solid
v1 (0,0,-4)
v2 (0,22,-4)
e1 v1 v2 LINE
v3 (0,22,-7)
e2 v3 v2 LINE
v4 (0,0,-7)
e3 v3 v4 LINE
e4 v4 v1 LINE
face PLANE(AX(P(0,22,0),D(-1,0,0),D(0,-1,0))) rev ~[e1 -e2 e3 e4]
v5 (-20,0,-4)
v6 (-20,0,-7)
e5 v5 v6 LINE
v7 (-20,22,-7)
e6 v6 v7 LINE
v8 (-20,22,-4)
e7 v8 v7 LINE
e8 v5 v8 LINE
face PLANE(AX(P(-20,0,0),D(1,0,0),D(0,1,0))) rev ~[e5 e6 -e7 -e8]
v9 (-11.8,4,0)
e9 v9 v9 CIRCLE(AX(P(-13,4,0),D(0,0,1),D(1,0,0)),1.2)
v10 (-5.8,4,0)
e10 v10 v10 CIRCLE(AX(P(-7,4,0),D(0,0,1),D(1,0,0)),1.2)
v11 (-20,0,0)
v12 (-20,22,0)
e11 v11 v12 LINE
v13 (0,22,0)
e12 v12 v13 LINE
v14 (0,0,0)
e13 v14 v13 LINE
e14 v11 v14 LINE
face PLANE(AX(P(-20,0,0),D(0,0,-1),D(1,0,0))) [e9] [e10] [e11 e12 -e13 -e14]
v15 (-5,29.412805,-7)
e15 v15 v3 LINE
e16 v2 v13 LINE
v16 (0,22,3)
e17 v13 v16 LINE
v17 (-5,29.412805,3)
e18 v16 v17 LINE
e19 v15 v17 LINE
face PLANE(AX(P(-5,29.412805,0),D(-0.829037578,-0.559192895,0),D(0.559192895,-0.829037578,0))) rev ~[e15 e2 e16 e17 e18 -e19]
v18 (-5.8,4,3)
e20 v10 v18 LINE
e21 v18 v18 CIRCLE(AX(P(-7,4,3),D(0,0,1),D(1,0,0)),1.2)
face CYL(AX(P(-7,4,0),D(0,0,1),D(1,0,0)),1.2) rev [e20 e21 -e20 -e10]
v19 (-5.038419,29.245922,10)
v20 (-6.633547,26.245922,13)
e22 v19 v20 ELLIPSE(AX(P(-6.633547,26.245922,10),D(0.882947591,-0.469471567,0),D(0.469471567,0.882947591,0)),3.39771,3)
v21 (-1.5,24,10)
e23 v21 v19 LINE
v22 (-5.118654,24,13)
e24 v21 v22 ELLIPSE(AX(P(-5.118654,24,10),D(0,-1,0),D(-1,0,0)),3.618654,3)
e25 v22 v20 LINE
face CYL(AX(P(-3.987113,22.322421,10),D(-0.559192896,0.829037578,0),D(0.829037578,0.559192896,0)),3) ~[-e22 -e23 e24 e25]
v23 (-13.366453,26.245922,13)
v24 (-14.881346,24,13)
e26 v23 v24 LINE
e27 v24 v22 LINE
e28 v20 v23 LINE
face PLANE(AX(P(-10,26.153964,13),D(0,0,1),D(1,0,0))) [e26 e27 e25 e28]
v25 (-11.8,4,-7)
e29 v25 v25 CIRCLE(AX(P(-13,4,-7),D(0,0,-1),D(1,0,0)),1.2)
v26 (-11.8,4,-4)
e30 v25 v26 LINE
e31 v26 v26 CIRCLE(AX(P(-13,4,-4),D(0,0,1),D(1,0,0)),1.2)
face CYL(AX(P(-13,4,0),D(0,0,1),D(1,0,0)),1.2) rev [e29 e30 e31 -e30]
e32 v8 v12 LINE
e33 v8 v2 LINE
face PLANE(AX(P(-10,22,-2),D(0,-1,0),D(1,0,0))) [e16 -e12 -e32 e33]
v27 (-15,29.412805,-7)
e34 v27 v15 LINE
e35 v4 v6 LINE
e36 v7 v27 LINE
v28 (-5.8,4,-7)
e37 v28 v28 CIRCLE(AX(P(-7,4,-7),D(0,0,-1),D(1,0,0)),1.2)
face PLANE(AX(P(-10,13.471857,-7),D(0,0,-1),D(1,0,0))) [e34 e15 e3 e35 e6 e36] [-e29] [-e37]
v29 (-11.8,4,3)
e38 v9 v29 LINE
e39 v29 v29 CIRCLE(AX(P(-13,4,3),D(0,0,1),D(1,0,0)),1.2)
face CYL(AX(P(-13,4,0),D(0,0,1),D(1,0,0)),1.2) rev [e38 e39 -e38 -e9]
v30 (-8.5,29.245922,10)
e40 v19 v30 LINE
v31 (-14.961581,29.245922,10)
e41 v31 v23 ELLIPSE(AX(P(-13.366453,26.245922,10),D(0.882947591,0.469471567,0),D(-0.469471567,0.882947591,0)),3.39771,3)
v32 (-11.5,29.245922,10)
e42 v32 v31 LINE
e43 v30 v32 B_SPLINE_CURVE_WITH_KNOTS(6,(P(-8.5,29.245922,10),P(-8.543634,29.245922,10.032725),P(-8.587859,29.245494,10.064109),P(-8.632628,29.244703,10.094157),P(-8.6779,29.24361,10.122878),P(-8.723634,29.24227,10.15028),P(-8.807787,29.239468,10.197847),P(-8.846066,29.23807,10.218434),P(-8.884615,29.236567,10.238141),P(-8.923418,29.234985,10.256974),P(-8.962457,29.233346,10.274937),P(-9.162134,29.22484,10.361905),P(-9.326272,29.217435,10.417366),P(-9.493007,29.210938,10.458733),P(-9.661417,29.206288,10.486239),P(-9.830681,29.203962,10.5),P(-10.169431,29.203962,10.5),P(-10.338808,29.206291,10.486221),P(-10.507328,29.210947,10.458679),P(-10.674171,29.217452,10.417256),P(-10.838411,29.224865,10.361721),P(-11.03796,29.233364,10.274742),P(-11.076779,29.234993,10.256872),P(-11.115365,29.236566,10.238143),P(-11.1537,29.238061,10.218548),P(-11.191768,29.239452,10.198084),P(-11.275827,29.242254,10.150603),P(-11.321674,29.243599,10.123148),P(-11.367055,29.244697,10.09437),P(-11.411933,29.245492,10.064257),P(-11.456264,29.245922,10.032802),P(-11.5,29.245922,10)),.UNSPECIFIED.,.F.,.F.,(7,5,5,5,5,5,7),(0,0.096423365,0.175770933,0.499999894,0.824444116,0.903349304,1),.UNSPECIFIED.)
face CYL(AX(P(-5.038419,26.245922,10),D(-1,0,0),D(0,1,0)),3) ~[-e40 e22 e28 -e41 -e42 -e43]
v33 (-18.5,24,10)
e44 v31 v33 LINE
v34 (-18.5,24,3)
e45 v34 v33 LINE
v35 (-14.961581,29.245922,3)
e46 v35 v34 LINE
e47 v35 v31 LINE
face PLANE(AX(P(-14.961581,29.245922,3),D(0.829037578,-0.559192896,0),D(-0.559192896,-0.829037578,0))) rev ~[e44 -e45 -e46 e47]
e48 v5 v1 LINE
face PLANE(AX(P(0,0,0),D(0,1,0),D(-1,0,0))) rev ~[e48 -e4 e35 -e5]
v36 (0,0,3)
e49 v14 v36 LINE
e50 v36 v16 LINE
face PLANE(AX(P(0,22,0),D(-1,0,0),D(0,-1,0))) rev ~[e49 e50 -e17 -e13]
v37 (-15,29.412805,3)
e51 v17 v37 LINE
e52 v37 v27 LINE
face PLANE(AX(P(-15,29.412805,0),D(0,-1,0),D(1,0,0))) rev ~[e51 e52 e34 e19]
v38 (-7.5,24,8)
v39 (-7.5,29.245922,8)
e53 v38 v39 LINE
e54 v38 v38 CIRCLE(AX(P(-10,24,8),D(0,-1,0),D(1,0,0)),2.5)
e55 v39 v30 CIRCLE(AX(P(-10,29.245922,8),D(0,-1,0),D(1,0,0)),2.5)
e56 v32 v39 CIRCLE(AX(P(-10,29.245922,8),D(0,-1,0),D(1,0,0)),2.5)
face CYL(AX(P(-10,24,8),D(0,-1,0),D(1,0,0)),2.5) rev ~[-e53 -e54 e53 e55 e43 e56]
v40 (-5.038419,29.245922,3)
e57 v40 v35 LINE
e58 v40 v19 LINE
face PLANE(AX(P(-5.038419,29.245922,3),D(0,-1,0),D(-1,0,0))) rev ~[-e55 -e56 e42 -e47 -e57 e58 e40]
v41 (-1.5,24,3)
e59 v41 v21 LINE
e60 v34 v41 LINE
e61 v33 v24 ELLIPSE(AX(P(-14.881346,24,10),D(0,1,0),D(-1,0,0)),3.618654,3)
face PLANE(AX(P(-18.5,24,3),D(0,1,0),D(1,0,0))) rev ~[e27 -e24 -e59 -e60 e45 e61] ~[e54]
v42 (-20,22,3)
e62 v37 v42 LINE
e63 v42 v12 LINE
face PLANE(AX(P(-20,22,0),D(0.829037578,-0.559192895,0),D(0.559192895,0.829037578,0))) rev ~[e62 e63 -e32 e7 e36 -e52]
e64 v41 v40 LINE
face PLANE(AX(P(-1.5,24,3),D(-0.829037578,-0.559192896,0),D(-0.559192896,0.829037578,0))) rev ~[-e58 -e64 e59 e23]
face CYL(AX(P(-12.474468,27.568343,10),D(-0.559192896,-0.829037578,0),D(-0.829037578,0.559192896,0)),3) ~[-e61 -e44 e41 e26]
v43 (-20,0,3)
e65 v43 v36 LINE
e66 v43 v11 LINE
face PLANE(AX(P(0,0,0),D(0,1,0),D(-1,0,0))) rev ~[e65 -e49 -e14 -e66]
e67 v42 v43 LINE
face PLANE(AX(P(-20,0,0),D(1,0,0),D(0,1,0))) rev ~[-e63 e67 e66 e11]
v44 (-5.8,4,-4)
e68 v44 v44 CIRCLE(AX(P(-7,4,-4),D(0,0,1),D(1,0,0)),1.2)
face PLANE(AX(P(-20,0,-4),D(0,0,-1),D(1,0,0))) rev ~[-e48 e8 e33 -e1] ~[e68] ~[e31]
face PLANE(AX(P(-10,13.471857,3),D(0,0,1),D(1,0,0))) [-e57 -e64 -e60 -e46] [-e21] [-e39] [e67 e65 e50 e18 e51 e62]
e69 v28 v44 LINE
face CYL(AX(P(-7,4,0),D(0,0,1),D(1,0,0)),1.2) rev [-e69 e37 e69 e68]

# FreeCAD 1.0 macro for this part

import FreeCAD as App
import Part
import Sketcher

V = App.Vector
Q = App.Units.Quantity


def edges_at(feature, points):
    """Names of the edges that pass closest to the given points."""
    edges = feature.Shape.Edges
    near = lambda p: min(range(len(edges)), key=lambda i: edges[i].distToShape(Part.Vertex(*p))[0])
    return sorted({f"Edge{near(p) + 1}" for p in points})


def add_polygon(sketch, points):
    """Adds a closed chain of lines whose ends are joined by coincident constraints."""
    first, n = sketch.GeometryCount, len(points)
    for a, b in zip(points, points[1:] + points[:1]):
        sketch.addGeometry(Part.LineSegment(App.Vector(*a, 0), App.Vector(*b, 0)), False)
    for i in range(n):
        sketch.addConstraint(Sketcher.Constraint("Coincident", first + i, 2, first + (i + 1) % n, 1))

doc = App.newDocument("Part")
body = doc.addObject("PartDesign::Body", "Body")

sketch1 = doc.addObject("Sketcher::SketchObject", "Sketch")
body.addObject(sketch1)
sketch1.AttachmentSupport = (doc.XY_Plane, [""])
sketch1.MapMode = "FlatFace"
add_polygon(sketch1, [(-20, 22), (-20, 0), (0, 0), (0, 22), (-5, 29.4), (-15, 29.4)])
sketch1.addGeometry(Part.Circle(V(-13, 4, 0), V(0, 0, 1), 1.2), False)
sketch1.addGeometry(Part.Circle(V(-7, 4, 0), V(0, 0, 1), 1.2), False)
sketch1.addConstraint([
    Sketcher.Constraint("Vertical", 0),
    Sketcher.Constraint("Horizontal", 1),
    Sketcher.Constraint("Vertical", 2),
    Sketcher.Constraint("Horizontal", 4),
    Sketcher.Constraint("Coincident", 1, 2, -1, 1),
    Sketcher.Constraint("Equal", 6, 7),
    Sketcher.Constraint("Horizontal", 6, 3, 7, 3),
    Sketcher.Constraint("Horizontal", 2, 2, 5, 2),
    Sketcher.Constraint("Equal", 3, 5),
    Sketcher.Constraint("Diameter", 6, Q("2.4 mm")),
    Sketcher.Constraint("DistanceX", 1, 1, 1, 2, Q("20 mm")),
    Sketcher.Constraint("DistanceX", 4, 2, 4, 1, Q("10 mm")),
    Sketcher.Constraint("DistanceY", 0, 2, 0, 1, Q("22 mm")),
    Sketcher.Constraint("Angle", 3, Q("123.999999 deg")),
    Sketcher.Constraint("DistanceX", 6, 3, -1, 1, Q("13 mm")),
    Sketcher.Constraint("DistanceY", -1, 1, 6, 3, Q("4 mm")),
    Sketcher.Constraint("DistanceX", 7, 3, -1, 1, Q("7 mm")),
])
pad1 = doc.addObject("PartDesign::Pad", "Pad")
body.addObject(pad1)
pad1.Profile = sketch1
pad1.Length = 3

sketch2 = doc.addObject("Sketcher::SketchObject", "Sketch001")
body.addObject(sketch2)
sketch2.AttachmentSupport = (doc.XY_Plane, [""])
sketch2.MapMode = "FlatFace"
sketch2.AttachmentOffset = App.Placement(V(0, 0, 3), App.Rotation())
add_polygon(sketch2, [(-2, 24), (-5, 29), (-15, 29), (-18, 24)])
sketch2.addConstraint([
    Sketcher.Constraint("Horizontal", 1),
    Sketcher.Constraint("Horizontal", 3),
    Sketcher.Constraint("Equal", 0, 2),
    Sketcher.Constraint("DistanceX", 3, 1, 3, 2, Q("17 mm")),
    Sketcher.Constraint("Angle", 0, Q("123.999999 deg")),
    Sketcher.Constraint("DistanceY", -1, 1, 2, 2, Q("24 mm")),
    Sketcher.Constraint("DistanceX", 2, 2, -1, 1, Q("18.5 mm")),
    Sketcher.Constraint("DistanceX", 1, 2, 1, 1, Q("9.923162 mm")),
])
pad2 = doc.addObject("PartDesign::Pad", "Pad001")
body.addObject(pad2)
pad2.Profile = sketch2
pad2.Length = 10
doc.recompute()

fillet = doc.addObject("PartDesign::Fillet", "Fillet")
body.addObject(fillet)
fillet.Base = (pad2, edges_at(pad2, [(-3.269, 26.623, 13), (-10, 29.246, 13), (-16.731, 26.623, 13)]))
fillet.Radius = 3

sketch3 = doc.addObject("Sketcher::SketchObject", "Sketch002")
body.addObject(sketch3)
sketch3.AttachmentSupport = (doc.XZ_Plane, [""])
sketch3.MapMode = "FlatFace"
sketch3.AttachmentOffset = App.Placement(V(0, 0, -24), App.Rotation())
sketch3.addGeometry(Part.Circle(V(-10, 8, 0), V(0, 0, 1), 2.5), False)
sketch3.addConstraint([
    Sketcher.Constraint("Diameter", 0, Q("5 mm")),
    Sketcher.Constraint("DistanceX", 0, 3, -1, 1, Q("10 mm")),
    Sketcher.Constraint("DistanceY", -1, 1, 0, 3, Q("8 mm")),
])
pocket1 = doc.addObject("PartDesign::Pocket", "Pocket")
body.addObject(pocket1)
pocket1.Profile = sketch3
pocket1.Length = 6

sketch4 = doc.addObject("Sketcher::SketchObject", "Sketch003")
body.addObject(sketch4)
sketch4.AttachmentSupport = (doc.XY_Plane, [""])
sketch4.MapMode = "FlatFace"
add_polygon(sketch4, [(0, 0), (-20, 0), (-20, 22), (-15, 29.4), (-5, 29.4), (0, 22)])
sketch4.addGeometry(Part.Circle(V(-13, 4, 0), V(0, 0, 1), 1.2), False)
sketch4.addGeometry(Part.Circle(V(-7, 4, 0), V(0, 0, 1), 1.2), False)
sketch4.addConstraint([
    Sketcher.Constraint("Horizontal", 0),
    Sketcher.Constraint("Vertical", 1),
    Sketcher.Constraint("Horizontal", 3),
    Sketcher.Constraint("Vertical", 5),
    Sketcher.Constraint("Coincident", 5, 2, -1, 1),
    Sketcher.Constraint("Equal", 6, 7),
    Sketcher.Constraint("Horizontal", 6, 3, 7, 3),
    Sketcher.Constraint("Horizontal", 1, 2, 4, 2),
    Sketcher.Constraint("Equal", 2, 4),
    Sketcher.Constraint("Diameter", 6, Q("2.4 mm")),
    Sketcher.Constraint("DistanceX", 0, 2, 0, 1, Q("20 mm")),
    Sketcher.Constraint("DistanceX", 3, 1, 3, 2, Q("10 mm")),
    Sketcher.Constraint("DistanceY", 1, 1, 1, 2, Q("22 mm")),
    Sketcher.Constraint("Angle", 2, Q("56.000001 deg")),
    Sketcher.Constraint("DistanceX", 6, 3, -1, 1, Q("13 mm")),
    Sketcher.Constraint("DistanceY", -1, 1, 6, 3, Q("4 mm")),
    Sketcher.Constraint("DistanceX", 7, 3, -1, 1, Q("7 mm")),
])
pad3 = doc.addObject("PartDesign::Pad", "Pad002")
body.addObject(pad3)
pad3.Profile = sketch4
pad3.Length = 7
pad3.Reversed = True

sketch5 = doc.addObject("Sketcher::SketchObject", "Sketch004")
body.addObject(sketch5)
sketch5.AttachmentSupport = (doc.XZ_Plane, [""])
sketch5.MapMode = "FlatFace"
add_polygon(sketch5, [(-20, 0), (-20, -4), (0, -4), (0, 0)])
sketch5.addConstraint([
    Sketcher.Constraint("Vertical", 0),
    Sketcher.Constraint("Horizontal", 1),
    Sketcher.Constraint("Vertical", 2),
    Sketcher.Constraint("Horizontal", 3),
    Sketcher.Constraint("Coincident", 2, 2, -1, 1),
    Sketcher.Constraint("DistanceX", 1, 1, 1, 2, Q("20 mm")),
    Sketcher.Constraint("DistanceY", 0, 2, 0, 1, Q("4 mm")),
])
pocket2 = doc.addObject("PartDesign::Pocket", "Pocket001")
body.addObject(pocket2)
pocket2.Profile = sketch5
pocket2.Length = 22

doc.recompute()
